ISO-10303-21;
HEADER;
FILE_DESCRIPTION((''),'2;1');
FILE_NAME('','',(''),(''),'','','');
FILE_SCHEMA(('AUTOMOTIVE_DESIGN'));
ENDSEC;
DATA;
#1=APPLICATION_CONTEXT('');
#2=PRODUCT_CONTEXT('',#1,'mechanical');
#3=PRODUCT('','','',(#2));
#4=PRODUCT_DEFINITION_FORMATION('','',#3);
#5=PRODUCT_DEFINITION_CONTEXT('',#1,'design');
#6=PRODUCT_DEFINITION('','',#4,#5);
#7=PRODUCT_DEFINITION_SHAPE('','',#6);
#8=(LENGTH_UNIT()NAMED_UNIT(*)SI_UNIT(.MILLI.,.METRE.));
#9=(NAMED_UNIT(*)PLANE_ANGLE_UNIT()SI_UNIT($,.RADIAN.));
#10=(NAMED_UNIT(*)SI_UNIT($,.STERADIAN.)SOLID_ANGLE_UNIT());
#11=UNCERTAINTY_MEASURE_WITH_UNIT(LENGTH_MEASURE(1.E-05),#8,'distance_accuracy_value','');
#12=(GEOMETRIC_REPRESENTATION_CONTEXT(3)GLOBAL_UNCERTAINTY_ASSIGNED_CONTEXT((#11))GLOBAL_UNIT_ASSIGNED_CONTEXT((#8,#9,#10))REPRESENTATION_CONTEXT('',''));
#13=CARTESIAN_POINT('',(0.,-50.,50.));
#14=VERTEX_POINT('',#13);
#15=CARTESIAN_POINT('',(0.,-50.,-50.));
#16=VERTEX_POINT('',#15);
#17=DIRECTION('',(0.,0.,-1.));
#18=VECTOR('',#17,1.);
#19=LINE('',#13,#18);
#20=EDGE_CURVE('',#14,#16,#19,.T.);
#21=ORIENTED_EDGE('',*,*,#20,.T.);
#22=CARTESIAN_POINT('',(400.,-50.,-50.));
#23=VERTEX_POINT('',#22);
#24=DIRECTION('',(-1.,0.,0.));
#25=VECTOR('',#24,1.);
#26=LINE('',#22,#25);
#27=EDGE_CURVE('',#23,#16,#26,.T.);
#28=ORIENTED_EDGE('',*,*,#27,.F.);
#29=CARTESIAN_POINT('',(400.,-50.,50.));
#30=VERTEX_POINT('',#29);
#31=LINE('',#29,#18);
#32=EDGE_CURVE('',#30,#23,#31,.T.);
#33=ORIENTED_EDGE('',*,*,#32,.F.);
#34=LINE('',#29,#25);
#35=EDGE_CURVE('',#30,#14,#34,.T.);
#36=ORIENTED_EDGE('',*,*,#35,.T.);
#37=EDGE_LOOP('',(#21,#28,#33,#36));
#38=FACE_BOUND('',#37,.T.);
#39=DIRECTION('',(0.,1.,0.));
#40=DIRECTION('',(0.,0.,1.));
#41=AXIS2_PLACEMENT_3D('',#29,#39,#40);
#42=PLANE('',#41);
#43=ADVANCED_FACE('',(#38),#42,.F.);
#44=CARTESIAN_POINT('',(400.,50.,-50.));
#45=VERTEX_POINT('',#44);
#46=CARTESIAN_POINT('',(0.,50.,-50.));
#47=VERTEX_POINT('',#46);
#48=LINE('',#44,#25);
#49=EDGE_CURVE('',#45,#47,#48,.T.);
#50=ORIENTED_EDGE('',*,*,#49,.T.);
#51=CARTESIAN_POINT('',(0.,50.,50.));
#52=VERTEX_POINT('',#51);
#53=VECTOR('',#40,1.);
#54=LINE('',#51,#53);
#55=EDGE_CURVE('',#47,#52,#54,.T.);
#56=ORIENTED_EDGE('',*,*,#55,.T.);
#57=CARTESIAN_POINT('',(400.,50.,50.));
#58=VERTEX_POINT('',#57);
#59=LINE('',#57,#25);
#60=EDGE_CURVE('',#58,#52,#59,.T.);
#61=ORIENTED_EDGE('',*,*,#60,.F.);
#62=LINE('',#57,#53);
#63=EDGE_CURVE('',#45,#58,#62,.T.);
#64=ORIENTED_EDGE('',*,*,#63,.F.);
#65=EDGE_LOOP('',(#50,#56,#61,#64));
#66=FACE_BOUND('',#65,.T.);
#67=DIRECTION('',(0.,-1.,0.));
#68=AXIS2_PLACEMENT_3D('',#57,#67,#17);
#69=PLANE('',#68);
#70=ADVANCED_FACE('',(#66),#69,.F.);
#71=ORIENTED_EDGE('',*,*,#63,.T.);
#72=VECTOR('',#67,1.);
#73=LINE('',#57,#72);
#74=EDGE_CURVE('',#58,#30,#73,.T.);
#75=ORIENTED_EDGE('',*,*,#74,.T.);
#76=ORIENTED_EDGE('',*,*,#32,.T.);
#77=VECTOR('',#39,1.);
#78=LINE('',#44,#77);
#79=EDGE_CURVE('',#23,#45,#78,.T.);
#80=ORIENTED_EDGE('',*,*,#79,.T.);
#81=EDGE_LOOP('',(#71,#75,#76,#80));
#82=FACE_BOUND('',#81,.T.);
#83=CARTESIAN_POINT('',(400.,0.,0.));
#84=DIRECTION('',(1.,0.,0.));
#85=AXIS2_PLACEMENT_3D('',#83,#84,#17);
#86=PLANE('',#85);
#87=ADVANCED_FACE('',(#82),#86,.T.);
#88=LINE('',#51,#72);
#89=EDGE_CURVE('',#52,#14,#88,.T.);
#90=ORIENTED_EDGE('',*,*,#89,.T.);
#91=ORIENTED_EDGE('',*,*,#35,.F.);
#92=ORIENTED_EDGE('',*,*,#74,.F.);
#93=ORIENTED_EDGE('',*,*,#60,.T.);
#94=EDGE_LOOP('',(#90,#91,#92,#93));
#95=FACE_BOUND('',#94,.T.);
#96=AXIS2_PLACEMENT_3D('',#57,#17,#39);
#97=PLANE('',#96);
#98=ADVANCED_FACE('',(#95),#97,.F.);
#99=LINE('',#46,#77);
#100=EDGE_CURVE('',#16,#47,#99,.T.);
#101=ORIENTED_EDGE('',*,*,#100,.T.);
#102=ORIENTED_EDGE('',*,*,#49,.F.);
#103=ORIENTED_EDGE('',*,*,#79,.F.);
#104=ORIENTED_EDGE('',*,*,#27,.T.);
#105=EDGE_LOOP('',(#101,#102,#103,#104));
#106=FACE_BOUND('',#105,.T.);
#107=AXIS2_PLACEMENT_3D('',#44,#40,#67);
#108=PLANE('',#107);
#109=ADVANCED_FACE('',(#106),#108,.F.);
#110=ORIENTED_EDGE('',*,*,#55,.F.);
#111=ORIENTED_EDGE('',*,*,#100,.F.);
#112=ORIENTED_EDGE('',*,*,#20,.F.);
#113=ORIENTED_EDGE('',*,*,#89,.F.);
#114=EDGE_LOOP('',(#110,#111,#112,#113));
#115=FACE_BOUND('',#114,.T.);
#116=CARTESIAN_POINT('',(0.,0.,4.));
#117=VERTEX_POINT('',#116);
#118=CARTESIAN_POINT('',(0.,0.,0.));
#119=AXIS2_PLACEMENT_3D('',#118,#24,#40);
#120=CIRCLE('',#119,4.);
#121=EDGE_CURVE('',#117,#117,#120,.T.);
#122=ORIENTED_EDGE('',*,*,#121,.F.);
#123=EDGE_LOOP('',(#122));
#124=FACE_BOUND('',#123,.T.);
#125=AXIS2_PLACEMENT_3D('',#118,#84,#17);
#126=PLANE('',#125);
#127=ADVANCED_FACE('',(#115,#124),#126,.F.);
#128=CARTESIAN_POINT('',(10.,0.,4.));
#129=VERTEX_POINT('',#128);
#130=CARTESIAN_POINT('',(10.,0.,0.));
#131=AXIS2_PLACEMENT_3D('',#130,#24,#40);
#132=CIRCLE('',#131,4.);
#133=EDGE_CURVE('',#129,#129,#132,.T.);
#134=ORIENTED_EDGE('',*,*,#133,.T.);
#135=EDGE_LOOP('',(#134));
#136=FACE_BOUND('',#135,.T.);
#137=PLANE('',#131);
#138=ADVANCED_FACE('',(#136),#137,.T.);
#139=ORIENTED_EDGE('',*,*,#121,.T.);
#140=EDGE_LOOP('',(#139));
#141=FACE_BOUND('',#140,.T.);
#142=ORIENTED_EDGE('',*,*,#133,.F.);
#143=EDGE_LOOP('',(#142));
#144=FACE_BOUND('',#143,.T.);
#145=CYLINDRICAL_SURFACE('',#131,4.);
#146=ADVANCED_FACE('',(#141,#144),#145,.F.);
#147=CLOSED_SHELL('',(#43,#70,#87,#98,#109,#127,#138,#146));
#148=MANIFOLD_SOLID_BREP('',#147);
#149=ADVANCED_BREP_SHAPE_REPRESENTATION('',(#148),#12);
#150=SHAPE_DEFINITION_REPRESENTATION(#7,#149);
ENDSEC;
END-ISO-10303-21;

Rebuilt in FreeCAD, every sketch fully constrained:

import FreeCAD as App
import Part
import Sketcher
from FreeCAD import Vector

doc = App.newDocument("Part")
body = doc.addObject("PartDesign::Body", "Body")

# Sketch on YZ plane
sketch1 = body.newObject("Sketcher::SketchObject", "Sketch")
sketch1.AttachmentSupport = (doc.getObject("YZ_Plane"), [""])
sketch1.MapMode = "FlatFace"
sketch1.addGeometry(Part.LineSegment(Vector(50, 50, 0), Vector(-50, 50, 0)), False)
sketch1.addGeometry(Part.LineSegment(Vector(-50, 50, 0), Vector(-50, -50, 0)), False)
sketch1.addGeometry(Part.LineSegment(Vector(-50, -50, 0), Vector(50, -50, 0)), False)
sketch1.addGeometry(Part.LineSegment(Vector(50, -50, 0), Vector(50, 50, 0)), False)
sketch1.addConstraint(Sketcher.Constraint("Coincident", 0, 2, 1, 1))
sketch1.addConstraint(Sketcher.Constraint("Coincident", 1, 2, 2, 1))
sketch1.addConstraint(Sketcher.Constraint("Coincident", 2, 2, 3, 1))
sketch1.addConstraint(Sketcher.Constraint("Coincident", 3, 2, 0, 1))
sketch1.addConstraint(Sketcher.Constraint("Horizontal", 0))
sketch1.addConstraint(Sketcher.Constraint("Vertical", 1))
sketch1.addConstraint(Sketcher.Constraint("Horizontal", 2))
sketch1.addConstraint(Sketcher.Constraint("Vertical", 3))
sketch1.addConstraint(Sketcher.Constraint("Symmetric", 0, 2, 2, 2, -1, 1))
sketch1.addConstraint(Sketcher.Constraint("Equal", 2, 1))
sketch1.addConstraint(Sketcher.Constraint("DistanceX", 0, 2, 0, 1, 100.0))
pad1 = body.newObject("PartDesign::Pad", "Pad")
pad1.Profile = sketch1
pad1.Length = 400

# Sketch on YZ plane
sketch2 = body.newObject("Sketcher::SketchObject", "Sketch001")
sketch2.AttachmentSupport = (doc.getObject("YZ_Plane"), [""])
sketch2.MapMode = "FlatFace"
sketch2.addGeometry(Part.Circle(Vector(0, 0, 0), Vector(0, 0, 1), 4), False)
sketch2.addConstraint(Sketcher.Constraint("Coincident", 0, 3, -1, 1))
sketch2.addConstraint(Sketcher.Constraint("Diameter", 0, 8.0))
pocket1 = body.newObject("PartDesign::Pocket", "Pocket")
pocket1.Profile = sketch2
pocket1.Length = 10
pocket1.Reversed = True

doc.recompute()
